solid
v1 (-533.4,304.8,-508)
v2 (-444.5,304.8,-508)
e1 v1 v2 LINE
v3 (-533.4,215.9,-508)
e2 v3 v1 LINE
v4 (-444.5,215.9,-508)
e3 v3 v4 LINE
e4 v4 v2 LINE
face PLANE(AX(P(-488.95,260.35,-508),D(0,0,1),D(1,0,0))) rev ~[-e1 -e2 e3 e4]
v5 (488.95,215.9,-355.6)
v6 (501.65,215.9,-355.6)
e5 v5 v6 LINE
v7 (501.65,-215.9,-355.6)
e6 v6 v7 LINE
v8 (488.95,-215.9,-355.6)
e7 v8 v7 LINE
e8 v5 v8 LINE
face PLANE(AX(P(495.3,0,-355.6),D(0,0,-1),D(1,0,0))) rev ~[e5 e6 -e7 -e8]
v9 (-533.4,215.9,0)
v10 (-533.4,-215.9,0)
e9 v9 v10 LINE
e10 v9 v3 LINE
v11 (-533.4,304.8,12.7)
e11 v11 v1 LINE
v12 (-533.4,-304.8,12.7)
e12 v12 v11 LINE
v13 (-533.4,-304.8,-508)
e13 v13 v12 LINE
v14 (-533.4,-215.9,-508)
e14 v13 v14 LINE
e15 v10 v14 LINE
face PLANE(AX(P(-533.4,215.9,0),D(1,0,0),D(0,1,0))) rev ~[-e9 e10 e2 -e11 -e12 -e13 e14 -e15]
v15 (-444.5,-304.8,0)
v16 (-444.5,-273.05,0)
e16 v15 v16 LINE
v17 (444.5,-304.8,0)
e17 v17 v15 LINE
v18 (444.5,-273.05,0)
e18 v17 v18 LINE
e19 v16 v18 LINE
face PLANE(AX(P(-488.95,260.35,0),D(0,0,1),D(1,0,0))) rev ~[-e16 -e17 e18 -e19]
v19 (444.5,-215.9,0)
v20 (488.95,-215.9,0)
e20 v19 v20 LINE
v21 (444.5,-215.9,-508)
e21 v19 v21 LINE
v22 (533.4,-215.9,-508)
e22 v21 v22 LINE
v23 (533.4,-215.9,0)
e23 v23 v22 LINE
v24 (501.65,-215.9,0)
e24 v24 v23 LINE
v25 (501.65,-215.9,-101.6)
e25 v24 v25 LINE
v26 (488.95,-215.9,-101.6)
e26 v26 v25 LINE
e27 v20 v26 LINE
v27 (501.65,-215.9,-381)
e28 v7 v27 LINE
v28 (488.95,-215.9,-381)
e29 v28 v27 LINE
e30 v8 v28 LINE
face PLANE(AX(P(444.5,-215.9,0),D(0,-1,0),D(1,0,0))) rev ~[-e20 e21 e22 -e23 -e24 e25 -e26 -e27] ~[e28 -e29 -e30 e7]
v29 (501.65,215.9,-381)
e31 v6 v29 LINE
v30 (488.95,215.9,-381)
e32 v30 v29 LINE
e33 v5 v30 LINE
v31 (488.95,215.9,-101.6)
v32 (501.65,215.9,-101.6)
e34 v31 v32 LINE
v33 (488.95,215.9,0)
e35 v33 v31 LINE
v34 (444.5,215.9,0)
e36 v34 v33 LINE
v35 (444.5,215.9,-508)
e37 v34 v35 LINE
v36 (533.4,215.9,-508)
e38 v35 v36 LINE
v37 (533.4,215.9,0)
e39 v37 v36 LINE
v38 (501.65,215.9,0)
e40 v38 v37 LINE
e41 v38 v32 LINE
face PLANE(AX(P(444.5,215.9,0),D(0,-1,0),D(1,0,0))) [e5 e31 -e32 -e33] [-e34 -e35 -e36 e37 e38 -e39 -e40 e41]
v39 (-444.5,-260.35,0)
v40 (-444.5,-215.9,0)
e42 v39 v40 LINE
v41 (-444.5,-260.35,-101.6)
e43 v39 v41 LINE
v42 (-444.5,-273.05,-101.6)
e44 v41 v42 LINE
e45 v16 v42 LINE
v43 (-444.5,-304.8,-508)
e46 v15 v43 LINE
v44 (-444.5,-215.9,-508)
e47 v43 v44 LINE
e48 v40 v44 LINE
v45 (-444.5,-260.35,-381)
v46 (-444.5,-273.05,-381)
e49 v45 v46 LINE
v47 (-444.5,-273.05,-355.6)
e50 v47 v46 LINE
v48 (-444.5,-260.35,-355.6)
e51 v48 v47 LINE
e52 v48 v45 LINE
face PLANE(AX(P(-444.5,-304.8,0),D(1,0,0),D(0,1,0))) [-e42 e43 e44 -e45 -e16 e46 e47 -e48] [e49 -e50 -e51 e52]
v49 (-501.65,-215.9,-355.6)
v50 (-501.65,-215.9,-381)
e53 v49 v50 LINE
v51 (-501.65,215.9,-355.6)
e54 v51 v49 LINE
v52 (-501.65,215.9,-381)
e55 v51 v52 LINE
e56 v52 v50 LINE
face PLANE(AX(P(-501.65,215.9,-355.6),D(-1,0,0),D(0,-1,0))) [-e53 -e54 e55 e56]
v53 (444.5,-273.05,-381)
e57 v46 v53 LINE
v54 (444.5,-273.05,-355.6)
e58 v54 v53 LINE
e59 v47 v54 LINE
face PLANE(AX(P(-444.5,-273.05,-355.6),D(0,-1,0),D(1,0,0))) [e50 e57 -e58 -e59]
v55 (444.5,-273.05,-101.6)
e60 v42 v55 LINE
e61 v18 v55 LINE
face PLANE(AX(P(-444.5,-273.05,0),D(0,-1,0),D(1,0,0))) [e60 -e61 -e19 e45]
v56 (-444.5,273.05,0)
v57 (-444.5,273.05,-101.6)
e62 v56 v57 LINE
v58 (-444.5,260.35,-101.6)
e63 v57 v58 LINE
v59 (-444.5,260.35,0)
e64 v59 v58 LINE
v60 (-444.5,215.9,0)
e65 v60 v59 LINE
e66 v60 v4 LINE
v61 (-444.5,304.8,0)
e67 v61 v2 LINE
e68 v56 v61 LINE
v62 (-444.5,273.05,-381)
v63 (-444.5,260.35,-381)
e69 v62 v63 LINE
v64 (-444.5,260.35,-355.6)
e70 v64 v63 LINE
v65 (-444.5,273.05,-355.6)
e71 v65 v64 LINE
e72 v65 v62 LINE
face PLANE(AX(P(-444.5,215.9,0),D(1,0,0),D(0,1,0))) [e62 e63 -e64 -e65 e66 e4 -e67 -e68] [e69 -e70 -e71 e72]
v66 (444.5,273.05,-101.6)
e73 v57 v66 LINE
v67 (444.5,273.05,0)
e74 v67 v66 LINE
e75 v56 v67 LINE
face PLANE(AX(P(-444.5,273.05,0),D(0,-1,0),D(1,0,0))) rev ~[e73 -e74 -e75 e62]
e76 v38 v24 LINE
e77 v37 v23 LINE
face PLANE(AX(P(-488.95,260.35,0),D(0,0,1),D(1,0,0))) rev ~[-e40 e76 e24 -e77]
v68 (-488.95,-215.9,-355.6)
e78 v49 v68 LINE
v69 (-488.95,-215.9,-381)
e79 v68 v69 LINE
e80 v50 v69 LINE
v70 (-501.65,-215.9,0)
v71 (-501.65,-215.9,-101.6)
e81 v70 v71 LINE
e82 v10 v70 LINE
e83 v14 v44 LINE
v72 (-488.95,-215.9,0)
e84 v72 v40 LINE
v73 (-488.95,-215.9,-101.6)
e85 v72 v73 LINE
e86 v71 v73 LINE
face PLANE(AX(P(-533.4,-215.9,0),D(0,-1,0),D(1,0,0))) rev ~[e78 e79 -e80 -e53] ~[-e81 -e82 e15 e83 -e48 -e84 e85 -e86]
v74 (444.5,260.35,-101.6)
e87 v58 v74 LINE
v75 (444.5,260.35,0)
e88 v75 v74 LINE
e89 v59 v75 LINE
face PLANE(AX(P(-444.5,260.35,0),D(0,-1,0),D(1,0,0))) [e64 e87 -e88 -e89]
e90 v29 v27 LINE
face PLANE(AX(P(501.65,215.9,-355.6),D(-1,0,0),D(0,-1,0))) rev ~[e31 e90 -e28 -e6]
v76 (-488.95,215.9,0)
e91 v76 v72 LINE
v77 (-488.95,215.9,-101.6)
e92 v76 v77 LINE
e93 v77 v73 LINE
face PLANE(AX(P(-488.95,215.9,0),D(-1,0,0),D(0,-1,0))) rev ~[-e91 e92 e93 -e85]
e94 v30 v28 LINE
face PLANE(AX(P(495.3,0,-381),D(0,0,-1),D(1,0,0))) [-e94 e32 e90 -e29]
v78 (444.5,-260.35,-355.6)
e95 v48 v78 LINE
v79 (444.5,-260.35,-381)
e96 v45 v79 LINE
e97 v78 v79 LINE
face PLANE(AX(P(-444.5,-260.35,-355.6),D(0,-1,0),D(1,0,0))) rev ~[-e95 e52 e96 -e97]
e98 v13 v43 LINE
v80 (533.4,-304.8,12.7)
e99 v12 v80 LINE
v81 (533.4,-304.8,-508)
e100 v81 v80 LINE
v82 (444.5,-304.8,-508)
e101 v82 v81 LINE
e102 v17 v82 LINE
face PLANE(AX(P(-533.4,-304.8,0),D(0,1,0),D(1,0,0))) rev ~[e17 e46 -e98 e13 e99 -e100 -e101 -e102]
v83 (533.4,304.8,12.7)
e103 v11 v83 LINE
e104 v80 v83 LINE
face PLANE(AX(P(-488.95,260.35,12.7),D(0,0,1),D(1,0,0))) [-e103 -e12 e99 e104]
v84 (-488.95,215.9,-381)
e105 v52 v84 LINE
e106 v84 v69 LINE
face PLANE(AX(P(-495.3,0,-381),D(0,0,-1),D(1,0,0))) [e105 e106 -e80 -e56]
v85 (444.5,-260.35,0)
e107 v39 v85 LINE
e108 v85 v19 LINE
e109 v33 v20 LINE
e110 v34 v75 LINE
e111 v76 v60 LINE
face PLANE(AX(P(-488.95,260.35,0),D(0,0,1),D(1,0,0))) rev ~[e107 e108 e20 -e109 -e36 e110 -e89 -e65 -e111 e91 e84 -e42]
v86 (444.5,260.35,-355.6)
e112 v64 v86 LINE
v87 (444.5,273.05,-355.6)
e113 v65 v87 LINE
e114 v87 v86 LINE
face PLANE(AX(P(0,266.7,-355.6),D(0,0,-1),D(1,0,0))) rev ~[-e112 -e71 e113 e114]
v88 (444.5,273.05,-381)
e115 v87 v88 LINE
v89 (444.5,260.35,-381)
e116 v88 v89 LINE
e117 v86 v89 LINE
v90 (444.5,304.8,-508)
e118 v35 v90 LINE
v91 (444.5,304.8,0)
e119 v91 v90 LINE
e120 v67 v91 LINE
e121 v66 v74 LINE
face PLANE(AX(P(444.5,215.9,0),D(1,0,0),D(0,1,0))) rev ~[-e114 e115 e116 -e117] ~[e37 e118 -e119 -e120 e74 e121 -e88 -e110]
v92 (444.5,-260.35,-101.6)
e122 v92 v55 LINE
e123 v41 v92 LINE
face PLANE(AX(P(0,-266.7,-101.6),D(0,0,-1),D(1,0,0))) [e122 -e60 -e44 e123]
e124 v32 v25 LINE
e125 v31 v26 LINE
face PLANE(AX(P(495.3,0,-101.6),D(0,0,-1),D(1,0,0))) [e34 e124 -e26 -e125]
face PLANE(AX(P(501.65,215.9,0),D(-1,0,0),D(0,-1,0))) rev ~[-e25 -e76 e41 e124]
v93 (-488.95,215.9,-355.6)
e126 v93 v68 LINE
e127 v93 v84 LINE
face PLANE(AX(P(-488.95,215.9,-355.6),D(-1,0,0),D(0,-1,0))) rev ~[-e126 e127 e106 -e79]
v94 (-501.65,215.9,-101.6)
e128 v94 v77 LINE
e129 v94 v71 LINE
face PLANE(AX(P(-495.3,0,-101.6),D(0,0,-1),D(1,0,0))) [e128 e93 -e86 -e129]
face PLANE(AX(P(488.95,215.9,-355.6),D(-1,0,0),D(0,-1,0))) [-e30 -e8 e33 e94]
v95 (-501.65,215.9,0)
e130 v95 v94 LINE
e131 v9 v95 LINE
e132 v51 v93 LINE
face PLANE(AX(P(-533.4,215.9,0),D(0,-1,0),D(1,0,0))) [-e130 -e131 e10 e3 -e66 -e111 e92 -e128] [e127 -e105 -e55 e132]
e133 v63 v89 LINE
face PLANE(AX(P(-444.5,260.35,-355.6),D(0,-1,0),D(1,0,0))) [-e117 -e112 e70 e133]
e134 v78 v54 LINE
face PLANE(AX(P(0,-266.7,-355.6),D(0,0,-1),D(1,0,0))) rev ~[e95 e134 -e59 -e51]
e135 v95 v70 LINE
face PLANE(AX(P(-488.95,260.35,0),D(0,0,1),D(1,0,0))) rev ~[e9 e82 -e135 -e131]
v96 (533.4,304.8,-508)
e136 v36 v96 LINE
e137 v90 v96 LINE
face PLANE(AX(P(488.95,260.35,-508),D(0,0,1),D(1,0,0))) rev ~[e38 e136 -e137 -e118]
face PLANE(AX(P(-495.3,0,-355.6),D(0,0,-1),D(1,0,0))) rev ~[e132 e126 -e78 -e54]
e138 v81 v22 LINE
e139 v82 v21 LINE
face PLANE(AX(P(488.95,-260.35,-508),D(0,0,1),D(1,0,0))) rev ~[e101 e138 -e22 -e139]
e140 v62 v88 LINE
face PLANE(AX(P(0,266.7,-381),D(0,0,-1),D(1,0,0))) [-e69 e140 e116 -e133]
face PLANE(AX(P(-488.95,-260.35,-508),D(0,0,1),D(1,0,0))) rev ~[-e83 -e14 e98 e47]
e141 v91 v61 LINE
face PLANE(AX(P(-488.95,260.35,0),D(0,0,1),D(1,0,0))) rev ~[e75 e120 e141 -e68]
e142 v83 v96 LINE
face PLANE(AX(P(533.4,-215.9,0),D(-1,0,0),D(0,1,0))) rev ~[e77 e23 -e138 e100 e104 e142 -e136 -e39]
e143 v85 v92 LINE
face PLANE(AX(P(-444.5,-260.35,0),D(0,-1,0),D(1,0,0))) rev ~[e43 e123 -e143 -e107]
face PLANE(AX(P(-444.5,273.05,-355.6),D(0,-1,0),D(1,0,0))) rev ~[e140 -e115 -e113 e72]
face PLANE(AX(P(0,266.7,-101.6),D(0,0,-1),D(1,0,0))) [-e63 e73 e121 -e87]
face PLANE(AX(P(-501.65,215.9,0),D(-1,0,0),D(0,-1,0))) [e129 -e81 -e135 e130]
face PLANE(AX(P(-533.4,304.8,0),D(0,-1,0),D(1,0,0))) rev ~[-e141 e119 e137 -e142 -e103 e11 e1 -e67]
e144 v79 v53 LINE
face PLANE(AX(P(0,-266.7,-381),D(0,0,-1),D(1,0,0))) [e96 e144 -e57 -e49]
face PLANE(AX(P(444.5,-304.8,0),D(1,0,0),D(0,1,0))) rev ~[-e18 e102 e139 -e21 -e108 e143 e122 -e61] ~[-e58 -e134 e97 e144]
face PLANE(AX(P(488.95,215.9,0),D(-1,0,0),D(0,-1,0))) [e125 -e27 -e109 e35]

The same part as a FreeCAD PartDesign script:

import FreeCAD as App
import Part
import Sketcher

V = App.Vector
Q = App.Units.Quantity

doc = App.newDocument("Part")
body = doc.addObject("PartDesign::Body", "Body")

# Sketch on XY plane
sketch1 = body.newObject("Sketcher::SketchObject", "Sketch")
sketch1.AttachmentSupport = (doc.getObject("XY_Plane"), [""])
sketch1.MapMode = "FlatFace"
sketch1.addGeometry([
    Part.LineSegment(V(444.5, 304.8, 0), V(-444.5, 304.8, 0)),  # 0
    Part.LineSegment(V(-444.5, 304.8, 0), V(-444.5, 215.9, 0)),  # 1
    Part.LineSegment(V(-444.5, 215.9, 0), V(-533.4, 215.9, 0)),  # 2
    Part.LineSegment(V(-533.4, 215.9, 0), V(-533.4, -215.9, 0)),  # 3
    Part.LineSegment(V(-533.4, -215.9, 0), V(-444.5, -215.9, 0)),  # 4
    Part.LineSegment(V(-444.5, -215.9, 0), V(-444.5, -304.8, 0)),  # 5
    Part.LineSegment(V(-444.5, -304.8, 0), V(444.5, -304.8, 0)),  # 6
    Part.LineSegment(V(444.5, -304.8, 0), V(444.5, -215.9, 0)),  # 7
    Part.LineSegment(V(444.5, -215.9, 0), V(533.4, -215.9, 0)),  # 8
    Part.LineSegment(V(533.4, -215.9, 0), V(533.4, 215.9, 0)),  # 9
    Part.LineSegment(V(533.4, 215.9, 0), V(444.5, 215.9, 0)),  # 10
    Part.LineSegment(V(444.5, 215.9, 0), V(444.5, 304.8, 0)),  # 11
], False)
sketch1.addConstraint([
    Sketcher.Constraint("Coincident", 0, 2, 1, 1),
    Sketcher.Constraint("Coincident", 1, 2, 2, 1),
    Sketcher.Constraint("Coincident", 2, 2, 3, 1),
    Sketcher.Constraint("Coincident", 3, 2, 4, 1),
    Sketcher.Constraint("Coincident", 4, 2, 5, 1),
    Sketcher.Constraint("Coincident", 5, 2, 6, 1),
    Sketcher.Constraint("Coincident", 6, 2, 7, 1),
    Sketcher.Constraint("Coincident", 7, 2, 8, 1),
    Sketcher.Constraint("Coincident", 8, 2, 9, 1),
    Sketcher.Constraint("Coincident", 9, 2, 10, 1),
    Sketcher.Constraint("Coincident", 10, 2, 11, 1),
    Sketcher.Constraint("Coincident", 11, 2, 0, 1),
    Sketcher.Constraint("Horizontal", 0),
    Sketcher.Constraint("Vertical", 1),
    Sketcher.Constraint("Horizontal", 2),
    Sketcher.Constraint("Vertical", 3),
    Sketcher.Constraint("Horizontal", 4),
    Sketcher.Constraint("Vertical", 5),
    Sketcher.Constraint("Horizontal", 6),
    Sketcher.Constraint("Vertical", 7),
    Sketcher.Constraint("Horizontal", 8),
    Sketcher.Constraint("Vertical", 9),
    Sketcher.Constraint("Horizontal", 10),
    Sketcher.Constraint("Vertical", 11),
    Sketcher.Constraint("Symmetric", 0, 2, 6, 2, -1, 1),
    Sketcher.Constraint("Symmetric", 2, 2, 8, 2, -1, 1),
    Sketcher.Constraint("Symmetric", 4, 2, 10, 2, -1, 1),
    Sketcher.Constraint("Symmetric", 4, 2, 7, 2, -2),
    Sketcher.Constraint("Equal", 10, 1),
    Sketcher.Constraint("DistanceX", 0, 2, 0, 1, Q("35 in")),
    Sketcher.Constraint("DistanceY", 3, 2, 3, 1, Q("17 in")),
    Sketcher.Constraint("DistanceX", 2, 2, 2, 1, Q("3.5 in")),
])
pad1 = body.newObject("PartDesign::Pad", "Pad")
pad1.Profile = sketch1
pad1.Length = Q("0.5 in")

# Sketch on XY plane
sketch2 = body.newObject("Sketcher::SketchObject", "Sketch001")
sketch2.AttachmentSupport = (doc.getObject("XY_Plane"), [""])
sketch2.MapMode = "FlatFace"
sketch2.addGeometry([
    Part.LineSegment(V(-533.4, 304.8, 0), V(-533.4, 215.9, 0)),  # 0
    Part.LineSegment(V(-533.4, 215.9, 0), V(-444.5, 215.9, 0)),  # 1
    Part.LineSegment(V(-444.5, 215.9, 0), V(-444.5, 304.8, 0)),  # 2
    Part.LineSegment(V(-444.5, 304.8, 0), V(-533.4, 304.8, 0)),  # 3
    Part.LineSegment(V(-533.4, -215.9, 0), V(-533.4, -304.8, 0)),  # 4
    Part.LineSegment(V(-533.4, -304.8, 0), V(-444.5, -304.8, 0)),  # 5
    Part.LineSegment(V(-444.5, -304.8, 0), V(-444.5, -215.9, 0)),  # 6
    Part.LineSegment(V(-444.5, -215.9, 0), V(-533.4, -215.9, 0)),  # 7
    Part.LineSegment(V(444.5, 304.8, 0), V(444.5, 215.9, 0)),  # 8
    Part.LineSegment(V(444.5, 215.9, 0), V(533.4, 215.9, 0)),  # 9
    Part.LineSegment(V(533.4, 215.9, 0), V(533.4, 304.8, 0)),  # 10
    Part.LineSegment(V(533.4, 304.8, 0), V(444.5, 304.8, 0)),  # 11
    Part.LineSegment(V(444.5, -215.9, 0), V(444.5, -304.8, 0)),  # 12
    Part.LineSegment(V(444.5, -304.8, 0), V(533.4, -304.8, 0)),  # 13
    Part.LineSegment(V(533.4, -304.8, 0), V(533.4, -215.9, 0)),  # 14
    Part.LineSegment(V(533.4, -215.9, 0), V(444.5, -215.9, 0)),  # 15
], False)
sketch2.addConstraint([
    Sketcher.Constraint("Coincident", 0, 2, 1, 1),
    Sketcher.Constraint("Coincident", 1, 2, 2, 1),
    Sketcher.Constraint("Coincident", 2, 2, 3, 1),
    Sketcher.Constraint("Coincident", 3, 2, 0, 1),
    Sketcher.Constraint("Coincident", 4, 2, 5, 1),
    Sketcher.Constraint("Coincident", 5, 2, 6, 1),
    Sketcher.Constraint("Coincident", 6, 2, 7, 1),
    Sketcher.Constraint("Coincident", 7, 2, 4, 1),
    Sketcher.Constraint("Coincident", 8, 2, 9, 1),
    Sketcher.Constraint("Coincident", 9, 2, 10, 1),
    Sketcher.Constraint("Coincident", 10, 2, 11, 1),
    Sketcher.Constraint("Coincident", 11, 2, 8, 1),
    Sketcher.Constraint("Coincident", 12, 2, 13, 1),
    Sketcher.Constraint("Coincident", 13, 2, 14, 1),
    Sketcher.Constraint("Coincident", 14, 2, 15, 1),
    Sketcher.Constraint("Coincident", 15, 2, 12, 1),
    Sketcher.Constraint("Vertical", 0),
    Sketcher.Constraint("Horizontal", 1),
    Sketcher.Constraint("Vertical", 2),
    Sketcher.Constraint("Horizontal", 3),
    Sketcher.Constraint("Vertical", 4),
    Sketcher.Constraint("Horizontal", 5),
    Sketcher.Constraint("Vertical", 6),
    Sketcher.Constraint("Horizontal", 7),
    Sketcher.Constraint("Vertical", 8),
    Sketcher.Constraint("Horizontal", 9),
    Sketcher.Constraint("Vertical", 10),
    Sketcher.Constraint("Horizontal", 11),
    Sketcher.Constraint("Vertical", 12),
    Sketcher.Constraint("Horizontal", 13),
    Sketcher.Constraint("Vertical", 14),
    Sketcher.Constraint("Horizontal", 15),
    Sketcher.Constraint("Symmetric", 6, 2, 8, 2, -1, 1),
    Sketcher.Constraint("Symmetric", 4, 2, 10, 2, -1, 1),
    Sketcher.Constraint("Symmetric", 2, 2, 12, 2, -1, 1),
    Sketcher.Constraint("Symmetric", 0, 2, 14, 2, -1, 1),
    Sketcher.Constraint("Symmetric", 1, 2, 8, 2, -2),
    Sketcher.Constraint("Symmetric", 3, 2, 10, 2, -2),
    Sketcher.Constraint("Equal", 15, 0),
    Sketcher.Constraint("DistanceX", 1, 1, 1, 2, Q("3.5 in")),
    Sketcher.Constraint("DistanceX", 0, 2, -1, 1, Q("21 in")),
    Sketcher.Constraint("DistanceY", -1, 1, 2, 2, Q("12 in")),
])
pad2 = body.newObject("PartDesign::Pad", "Pad001")
pad2.Profile = sketch2
pad2.Type = "TwoLengths"
pad2.Length = Q("0.5 in")
pad2.Length2 = Q("20 in")

# Sketch on XY plane
sketch3 = body.newObject("Sketcher::SketchObject", "Sketch002")
sketch3.AttachmentSupport = (doc.getObject("XY_Plane"), [""])
sketch3.MapMode = "FlatFace"
sketch3.addGeometry([
    Part.LineSegment(V(-444.5, -273.05, 0), V(-444.5, -260.35, 0)),  # 0
    Part.LineSegment(V(-444.5, -260.35, 0), V(444.5, -260.35, 0)),  # 1
    Part.LineSegment(V(444.5, -260.35, 0), V(444.5, -273.05, 0)),  # 2
    Part.LineSegment(V(444.5, -273.05, 0), V(-444.5, -273.05, 0)),  # 3
    Part.LineSegment(V(-501.65, -215.9, 0), V(-501.65, 215.9, 0)),  # 4
    Part.LineSegment(V(-501.65, 215.9, 0), V(-488.95, 215.9, 0)),  # 5
    Part.LineSegment(V(-488.95, 215.9, 0), V(-488.95, -215.9, 0)),  # 6
    Part.LineSegment(V(-488.95, -215.9, 0), V(-501.65, -215.9, 0)),  # 7
    Part.LineSegment(V(-444.5, 260.35, 0), V(-444.5, 273.05, 0)),  # 8
    Part.LineSegment(V(-444.5, 273.05, 0), V(444.5, 273.05, 0)),  # 9
    Part.LineSegment(V(444.5, 273.05, 0), V(444.5, 260.35, 0)),  # 10
    Part.LineSegment(V(444.5, 260.35, 0), V(-444.5, 260.35, 0)),  # 11
    Part.LineSegment(V(488.95, -215.9, 0), V(488.95, 215.9, 0)),  # 12
    Part.LineSegment(V(488.95, 215.9, 0), V(501.65, 215.9, 0)),  # 13
    Part.LineSegment(V(501.65, 215.9, 0), V(501.65, -215.9, 0)),  # 14
    Part.LineSegment(V(501.65, -215.9, 0), V(488.95, -215.9, 0)),  # 15
], False)
sketch3.addConstraint([
    Sketcher.Constraint("Coincident", 0, 2, 1, 1),
    Sketcher.Constraint("Coincident", 1, 2, 2, 1),
    Sketcher.Constraint("Coincident", 2, 2, 3, 1),
    Sketcher.Constraint("Coincident", 3, 2, 0, 1),
    Sketcher.Constraint("Coincident", 4, 2, 5, 1),
    Sketcher.Constraint("Coincident", 5, 2, 6, 1),
    Sketcher.Constraint("Coincident", 6, 2, 7, 1),
    Sketcher.Constraint("Coincident", 7, 2, 4, 1),
    Sketcher.Constraint("Coincident", 8, 2, 9, 1),
    Sketcher.Constraint("Coincident", 9, 2, 10, 1),
    Sketcher.Constraint("Coincident", 10, 2, 11, 1),
    Sketcher.Constraint("Coincident", 11, 2, 8, 1),
    Sketcher.Constraint("Coincident", 12, 2, 13, 1),
    Sketcher.Constraint("Coincident", 13, 2, 14, 1),
    Sketcher.Constraint("Coincident", 14, 2, 15, 1),
    Sketcher.Constraint("Coincident", 15, 2, 12, 1),
    Sketcher.Constraint("Vertical", 0),
    Sketcher.Constraint("Horizontal", 1),
    Sketcher.Constraint("Vertical", 2),
    Sketcher.Constraint("Horizontal", 3),
    Sketcher.Constraint("Vertical", 4),
    Sketcher.Constraint("Horizontal", 5),
    Sketcher.Constraint("Vertical", 6),
    Sketcher.Constraint("Horizontal", 7),
    Sketcher.Constraint("Vertical", 8),
    Sketcher.Constraint("Horizontal", 9),
    Sketcher.Constraint("Vertical", 10),
    Sketcher.Constraint("Horizontal", 11),
    Sketcher.Constraint("Vertical", 12),
    Sketcher.Constraint("Horizontal", 13),
    Sketcher.Constraint("Vertical", 14),
    Sketcher.Constraint("Horizontal", 15),
    Sketcher.Constraint("Symmetric", 2, 2, 8, 2, -1, 1),
    Sketcher.Constraint("Symmetric", 0, 2, 10, 2, -1, 1),
    Sketcher.Constraint("Symmetric", 6, 2, 12, 2, -1, 1),
    Sketcher.Constraint("Symmetric", 4, 2, 14, 2, -1, 1),
    Sketcher.Constraint("Horizontal", 5, 2, 12, 2),
    Sketcher.Constraint("Vertical", 3, 2, 8, 2),
    Sketcher.Constraint("Equal", 15, 0),
    Sketcher.Constraint("DistanceX", 1, 1, 1, 2, Q("35 in")),
    Sketcher.Constraint("DistanceY", 4, 1, 4, 2, Q("17 in")),
    Sketcher.Constraint("DistanceX", 5, 1, 5, 2, Q("0.5 in")),
    Sketcher.Constraint("DistanceY", 0, 2, 8, 2, Q("21 in")),
    Sketcher.Constraint("DistanceX", 4, 2, -1, 1, Q("19.75 in")),
])
pad3 = body.newObject("PartDesign::Pad", "Pad002")
pad3.Profile = sketch3
pad3.Length = Q("4 in")
pad3.Reversed = True

# Sketch on XY plane
sketch4 = body.newObject("Sketcher::SketchObject", "Sketch003")
sketch4.AttachmentSupport = (doc.getObject("XY_Plane"), [""])
sketch4.MapMode = "FlatFace"
sketch4.AttachmentOffset = App.Placement(V(0, 0, -14 * 25.4), App.Rotation())
sketch4.addGeometry([
    Part.LineSegment(V(-444.5, -273.05, 0), V(-444.5, -260.35, 0)),  # 0
    Part.LineSegment(V(-444.5, -260.35, 0), V(444.5, -260.35, 0)),  # 1
    Part.LineSegment(V(444.5, -260.35, 0), V(444.5, -273.05, 0)),  # 2
    Part.LineSegment(V(444.5, -273.05, 0), V(-444.5, -273.05, 0)),  # 3
    Part.LineSegment(V(-444.5, 260.35, 0), V(-444.5, 273.05, 0)),  # 4
    Part.LineSegment(V(-444.5, 273.05, 0), V(444.5, 273.05, 0)),  # 5
    Part.LineSegment(V(444.5, 273.05, 0), V(444.5, 260.35, 0)),  # 6
    Part.LineSegment(V(444.5, 260.35, 0), V(-444.5, 260.35, 0)),  # 7
    Part.LineSegment(V(-501.65, -215.9, 0), V(-501.65, 215.9, 0)),  # 8
    Part.LineSegment(V(-501.65, 215.9, 0), V(-488.95, 215.9, 0)),  # 9
    Part.LineSegment(V(-488.95, 215.9, 0), V(-488.95, -215.9, 0)),  # 10
    Part.LineSegment(V(-488.95, -215.9, 0), V(-501.65, -215.9, 0)),  # 11
    Part.LineSegment(V(488.95, -215.9, 0), V(488.95, 215.9, 0)),  # 12
    Part.LineSegment(V(488.95, 215.9, 0), V(501.65, 215.9, 0)),  # 13
    Part.LineSegment(V(501.65, 215.9, 0), V(501.65, -215.9, 0)),  # 14
    Part.LineSegment(V(501.65, -215.9, 0), V(488.95, -215.9, 0)),  # 15
], False)
sketch4.addConstraint([
    Sketcher.Constraint("Coincident", 0, 2, 1, 1),
    Sketcher.Constraint("Coincident", 1, 2, 2, 1),
    Sketcher.Constraint("Coincident", 2, 2, 3, 1),
    Sketcher.Constraint("Coincident", 3, 2, 0, 1),
    Sketcher.Constraint("Coincident", 4, 2, 5, 1),
    Sketcher.Constraint("Coincident", 5, 2, 6, 1),
    Sketcher.Constraint("Coincident", 6, 2, 7, 1),
    Sketcher.Constraint("Coincident", 7, 2, 4, 1),
    Sketcher.Constraint("Coincident", 8, 2, 9, 1),
    Sketcher.Constraint("Coincident", 9, 2, 10, 1),
    Sketcher.Constraint("Coincident", 10, 2, 11, 1),
    Sketcher.Constraint("Coincident", 11, 2, 8, 1),
    Sketcher.Constraint("Coincident", 12, 2, 13, 1),
    Sketcher.Constraint("Coincident", 13, 2, 14, 1),
    Sketcher.Constraint("Coincident", 14, 2, 15, 1),
    Sketcher.Constraint("Coincident", 15, 2, 12, 1),
    Sketcher.Constraint("Vertical", 0),
    Sketcher.Constraint("Horizontal", 1),
    Sketcher.Constraint("Vertical", 2),
    Sketcher.Constraint("Horizontal", 3),
    Sketcher.Constraint("Vertical", 4),
    Sketcher.Constraint("Horizontal", 5),
    Sketcher.Constraint("Vertical", 6),
    Sketcher.Constraint("Horizontal", 7),
    Sketcher.Constraint("Vertical", 8),
    Sketcher.Constraint("Horizontal", 9),
    Sketcher.Constraint("Vertical", 10),
    Sketcher.Constraint("Horizontal", 11),
    Sketcher.Constraint("Vertical", 12),
    Sketcher.Constraint("Horizontal", 13),
    Sketcher.Constraint("Vertical", 14),
    Sketcher.Constraint("Horizontal", 15),
    Sketcher.Constraint("Symmetric", 2, 2, 4, 2, -1, 1),
    Sketcher.Constraint("Symmetric", 0, 2, 6, 2, -1, 1),
    Sketcher.Constraint("Symmetric", 10, 2, 12, 2, -1, 1),
    Sketcher.Constraint("Symmetric", 8, 2, 14, 2, -1, 1),
    Sketcher.Constraint("Horizontal", 9, 2, 12, 2),
    Sketcher.Constraint("Vertical", 3, 2, 4, 2),
    Sketcher.Constraint("Equal", 15, 0),
    Sketcher.Constraint("DistanceX", 1, 1, 1, 2, Q("35 in")),
    Sketcher.Constraint("DistanceY", 8, 1, 8, 2, Q("17 in")),
    Sketcher.Constraint("DistanceX", 9, 1, 9, 2, Q("0.5 in")),
    Sketcher.Constraint("DistanceY", 0, 2, 4, 2, Q("21 in")),
    Sketcher.Constraint("DistanceX", 8, 2, -1, 1, Q("19.75 in")),
])
pad4 = body.newObject("PartDesign::Pad", "Pad003")
pad4.Profile = sketch4
pad4.Length = Q("1 in")
pad4.Reversed = True

doc.recompute()
